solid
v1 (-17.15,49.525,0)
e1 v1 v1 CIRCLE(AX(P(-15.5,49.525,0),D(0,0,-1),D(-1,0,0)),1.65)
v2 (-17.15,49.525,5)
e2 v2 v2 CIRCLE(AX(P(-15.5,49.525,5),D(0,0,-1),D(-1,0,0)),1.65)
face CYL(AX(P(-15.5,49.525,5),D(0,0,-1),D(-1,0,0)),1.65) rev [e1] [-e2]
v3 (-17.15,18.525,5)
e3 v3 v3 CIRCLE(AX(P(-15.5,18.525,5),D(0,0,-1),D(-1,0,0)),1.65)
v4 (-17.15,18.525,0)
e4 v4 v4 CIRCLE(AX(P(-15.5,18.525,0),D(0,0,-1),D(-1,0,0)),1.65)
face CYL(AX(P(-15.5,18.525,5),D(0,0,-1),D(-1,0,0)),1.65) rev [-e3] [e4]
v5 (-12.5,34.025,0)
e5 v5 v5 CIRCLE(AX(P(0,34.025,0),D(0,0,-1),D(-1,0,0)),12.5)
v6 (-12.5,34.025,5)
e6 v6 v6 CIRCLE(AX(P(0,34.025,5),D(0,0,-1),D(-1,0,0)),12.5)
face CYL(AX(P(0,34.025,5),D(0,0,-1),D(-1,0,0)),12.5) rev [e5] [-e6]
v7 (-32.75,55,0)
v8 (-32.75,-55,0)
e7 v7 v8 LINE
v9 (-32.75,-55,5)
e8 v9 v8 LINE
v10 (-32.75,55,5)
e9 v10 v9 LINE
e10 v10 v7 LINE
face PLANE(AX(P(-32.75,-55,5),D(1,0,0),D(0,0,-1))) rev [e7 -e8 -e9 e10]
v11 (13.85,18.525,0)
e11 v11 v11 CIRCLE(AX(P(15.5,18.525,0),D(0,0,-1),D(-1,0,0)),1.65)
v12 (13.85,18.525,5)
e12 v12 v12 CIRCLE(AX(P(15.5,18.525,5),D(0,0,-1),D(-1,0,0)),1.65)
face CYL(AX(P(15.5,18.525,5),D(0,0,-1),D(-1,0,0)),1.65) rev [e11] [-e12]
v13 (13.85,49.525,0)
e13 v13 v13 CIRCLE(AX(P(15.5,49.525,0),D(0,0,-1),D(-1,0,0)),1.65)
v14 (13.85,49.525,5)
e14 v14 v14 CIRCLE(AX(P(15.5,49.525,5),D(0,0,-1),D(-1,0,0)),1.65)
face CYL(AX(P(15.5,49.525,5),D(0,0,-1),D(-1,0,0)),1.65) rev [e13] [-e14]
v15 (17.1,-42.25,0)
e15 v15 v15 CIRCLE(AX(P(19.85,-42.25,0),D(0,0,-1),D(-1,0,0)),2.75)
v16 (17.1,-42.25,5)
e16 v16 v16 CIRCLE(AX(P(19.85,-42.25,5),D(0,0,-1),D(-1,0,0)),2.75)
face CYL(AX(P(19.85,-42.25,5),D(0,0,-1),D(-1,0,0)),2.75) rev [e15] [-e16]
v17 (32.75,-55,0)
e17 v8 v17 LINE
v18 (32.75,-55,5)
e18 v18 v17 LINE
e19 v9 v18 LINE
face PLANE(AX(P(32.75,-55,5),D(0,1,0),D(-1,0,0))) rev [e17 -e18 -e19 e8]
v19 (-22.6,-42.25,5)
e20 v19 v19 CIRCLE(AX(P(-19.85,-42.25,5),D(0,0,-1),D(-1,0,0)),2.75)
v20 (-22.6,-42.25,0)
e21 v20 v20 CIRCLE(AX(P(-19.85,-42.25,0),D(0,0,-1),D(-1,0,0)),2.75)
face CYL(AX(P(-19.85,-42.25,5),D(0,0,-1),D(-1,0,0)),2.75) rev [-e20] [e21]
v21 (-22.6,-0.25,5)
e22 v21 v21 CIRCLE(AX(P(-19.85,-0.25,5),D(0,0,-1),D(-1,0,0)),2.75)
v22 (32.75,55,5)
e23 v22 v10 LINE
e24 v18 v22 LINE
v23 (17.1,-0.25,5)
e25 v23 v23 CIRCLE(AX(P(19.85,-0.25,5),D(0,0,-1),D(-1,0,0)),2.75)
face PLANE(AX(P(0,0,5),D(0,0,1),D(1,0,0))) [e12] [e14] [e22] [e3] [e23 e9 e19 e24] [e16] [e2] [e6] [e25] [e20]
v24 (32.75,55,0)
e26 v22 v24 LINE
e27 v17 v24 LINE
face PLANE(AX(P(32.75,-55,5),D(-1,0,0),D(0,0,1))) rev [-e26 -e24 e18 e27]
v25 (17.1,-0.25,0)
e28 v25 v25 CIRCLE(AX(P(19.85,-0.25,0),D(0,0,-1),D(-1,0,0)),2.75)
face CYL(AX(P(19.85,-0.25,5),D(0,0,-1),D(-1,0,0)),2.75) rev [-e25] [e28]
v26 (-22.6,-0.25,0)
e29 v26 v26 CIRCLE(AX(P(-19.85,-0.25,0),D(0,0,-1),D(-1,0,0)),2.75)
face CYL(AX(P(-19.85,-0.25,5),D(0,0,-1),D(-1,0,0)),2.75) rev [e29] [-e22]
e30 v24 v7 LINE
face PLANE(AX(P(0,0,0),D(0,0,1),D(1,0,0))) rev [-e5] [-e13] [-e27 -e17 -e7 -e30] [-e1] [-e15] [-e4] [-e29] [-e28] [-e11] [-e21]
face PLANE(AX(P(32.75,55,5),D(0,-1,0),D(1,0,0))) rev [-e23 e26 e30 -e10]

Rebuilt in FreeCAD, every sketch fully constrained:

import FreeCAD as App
import Part
import Sketcher
from FreeCAD import Vector

doc = App.newDocument("Part")
params = doc.addObject("Spreadsheet::Sheet", "Params")
for row, (alias, value) in enumerate([
    ("sketch1_height", "110 mm"),
    ("sketch1_width", "65.5 mm"),
    ("pad1_length", "5 mm"),
    ("sketch2_diameter", "25 mm"),
    ("sketch3_diameter", "3.3 mm"),
    ("sketch4_diameter", "5.5 mm"),
], start=1):
    params.set(f"A{row}", alias)
    params.set(f"B{row}", "=" + value)
    params.setAlias(f"B{row}", alias)

body = doc.addObject("PartDesign::Body", "Body")

# Sketch on XY plane
sketch1 = doc.addObject("Sketcher::SketchObject", "Sketch")
body.addObject(sketch1)
sketch1.AttachmentSupport = (doc.XY_Plane, [""])
sketch1.MapMode = "FlatFace"
sketch1.addGeometry(Part.LineSegment(Vector(-32.75, 55, 0), Vector(-32.75, -55, 0)), False)
sketch1.addGeometry(Part.LineSegment(Vector(-32.75, -55, 0), Vector(32.75, -55, 0)), False)
sketch1.addGeometry(Part.LineSegment(Vector(32.75, -55, 0), Vector(32.75, 55, 0)), False)
sketch1.addGeometry(Part.LineSegment(Vector(32.75, 55, 0), Vector(-32.75, 55, 0)), False)
sketch1.addConstraint(Sketcher.Constraint("Coincident", 0, 2, 1, 1))
sketch1.addConstraint(Sketcher.Constraint("Coincident", 1, 2, 2, 1))
sketch1.addConstraint(Sketcher.Constraint("Coincident", 2, 2, 3, 1))
sketch1.addConstraint(Sketcher.Constraint("Coincident", 3, 2, 0, 1))
sketch1.addConstraint(Sketcher.Constraint("Vertical", 0))
sketch1.addConstraint(Sketcher.Constraint("Horizontal", 1))
sketch1.addConstraint(Sketcher.Constraint("Vertical", 2))
sketch1.addConstraint(Sketcher.Constraint("Horizontal", 3))
sketch1.addConstraint(Sketcher.Constraint("Symmetric", 0, 2, 2, 2, -1, 1))
sketch1.addConstraint(Sketcher.Constraint("DistanceY", 0, 2, 0, 1, 110.0))
sketch1.addConstraint(Sketcher.Constraint("DistanceX", 1, 1, 1, 2, 65.5))
sketch1.setExpression("Constraints[9]", "Params.sketch1_height")
sketch1.setExpression("Constraints[10]", "Params.sketch1_width")
pad1 = doc.addObject("PartDesign::Pad", "Pad")
body.addObject(pad1)
pad1.Profile = sketch1
pad1.setExpression("Length", "Params.pad1_length")

# Sketch on XY plane
sketch2 = doc.addObject("Sketcher::SketchObject", "Sketch001")
body.addObject(sketch2)
sketch2.AttachmentSupport = (doc.XY_Plane, [""])
sketch2.MapMode = "FlatFace"
sketch2.addGeometry(Part.Circle(Vector(0, 34.025, 0), Vector(0, 0, 1), 12.5), False)
sketch2.addConstraint(Sketcher.Constraint("PointOnObject", 0, 3, -2))
sketch2.addConstraint(Sketcher.Constraint("Diameter", 0, 25.0))
sketch2.addConstraint(Sketcher.Constraint("DistanceY", -1, 1, 0, 3, 34.025))
sketch2.setExpression("Constraints[1]", "Params.sketch2_diameter")
pocket1 = doc.addObject("PartDesign::Pocket", "Pocket")
body.addObject(pocket1)
pocket1.Profile = sketch2
pocket1.Type = "ThroughAll"
pocket1.Reversed = True

# Sketch on XY plane
sketch3 = doc.addObject("Sketcher::SketchObject", "Sketch002")
body.addObject(sketch3)
sketch3.AttachmentSupport = (doc.XY_Plane, [""])
sketch3.MapMode = "FlatFace"
sketch3.addGeometry(Part.Circle(Vector(15.5, 49.525, 0), Vector(0, 0, 1), 1.65), False)
sketch3.addGeometry(Part.Circle(Vector(15.5, 18.525, 0), Vector(0, 0, 1), 1.65), False)
sketch3.addGeometry(Part.Circle(Vector(-15.5, 18.525, 0), Vector(0, 0, 1), 1.65), False)
sketch3.addGeometry(Part.Circle(Vector(-15.5, 49.525, 0), Vector(0, 0, 1), 1.65), False)
sketch3.addConstraint(Sketcher.Constraint("Equal", 0, 1))
sketch3.addConstraint(Sketcher.Constraint("Equal", 1, 2))
sketch3.addConstraint(Sketcher.Constraint("Equal", 2, 3))
sketch3.addConstraint(Sketcher.Constraint("Symmetric", 1, 3, 2, 3, -2))
sketch3.addConstraint(Sketcher.Constraint("Symmetric", 0, 3, 3, 3, -2))
sketch3.addConstraint(Sketcher.Constraint("Vertical", 0, 3, 1, 3))
sketch3.addConstraint(Sketcher.Constraint("Diameter", 0, 3.3))
sketch3.addConstraint(Sketcher.Constraint("DistanceY", 1, 3, 0, 3, 31.0))
sketch3.addConstraint(Sketcher.Constraint("DistanceX", 2, 3, 1, 3, 31.0))
sketch3.addConstraint(Sketcher.Constraint("DistanceY", -1, 1, 0, 3, 49.525))
sketch3.setExpression("Constraints[6]", "Params.sketch3_diameter")
pocket2 = doc.addObject("PartDesign::Pocket", "Pocket001")
body.addObject(pocket2)
pocket2.Profile = sketch3
pocket2.Type = "ThroughAll"
pocket2.Reversed = True

# Sketch on XY plane
sketch4 = doc.addObject("Sketcher::SketchObject", "Sketch003")
body.addObject(sketch4)
sketch4.AttachmentSupport = (doc.XY_Plane, [""])
sketch4.MapMode = "FlatFace"
sketch4.addGeometry(Part.Circle(Vector(19.85, -0.25, 0), Vector(0, 0, 1), 2.75), False)
sketch4.addGeometry(Part.Circle(Vector(-19.85, -0.25, 0), Vector(0, 0, 1), 2.75), False)
sketch4.addGeometry(Part.Circle(Vector(-19.85, -42.25, 0), Vector(0, 0, 1), 2.75), False)
sketch4.addGeometry(Part.Circle(Vector(19.85, -42.25, 0), Vector(0, 0, 1), 2.75), False)
sketch4.addConstraint(Sketcher.Constraint("Equal", 0, 1))
sketch4.addConstraint(Sketcher.Constraint("Equal", 1, 2))
sketch4.addConstraint(Sketcher.Constraint("Equal", 2, 3))
sketch4.addConstraint(Sketcher.Constraint("Symmetric", 0, 3, 1, 3, -2))
sketch4.addConstraint(Sketcher.Constraint("Symmetric", 2, 3, 3, 3, -2))
sketch4.addConstraint(Sketcher.Constraint("Vertical", 1, 3, 2, 3))
sketch4.addConstraint(Sketcher.Constraint("Diameter", 0, 5.5))
sketch4.addConstraint(Sketcher.Constraint("DistanceY", 2, 3, 1, 3, 42.0))
sketch4.addConstraint(Sketcher.Constraint("DistanceX", 1, 3, 0, 3, 39.7))
sketch4.addConstraint(Sketcher.Constraint("DistanceY", 0, 3, -1, 1, 0.25))
sketch4.setExpression("Constraints[6]", "Params.sketch4_diameter")
pocket3 = doc.addObject("PartDesign::Pocket", "Pocket002")
body.addObject(pocket3)
pocket3.Profile = sketch4
pocket3.Type = "ThroughAll"
pocket3.Reversed = True

doc.recompute()
